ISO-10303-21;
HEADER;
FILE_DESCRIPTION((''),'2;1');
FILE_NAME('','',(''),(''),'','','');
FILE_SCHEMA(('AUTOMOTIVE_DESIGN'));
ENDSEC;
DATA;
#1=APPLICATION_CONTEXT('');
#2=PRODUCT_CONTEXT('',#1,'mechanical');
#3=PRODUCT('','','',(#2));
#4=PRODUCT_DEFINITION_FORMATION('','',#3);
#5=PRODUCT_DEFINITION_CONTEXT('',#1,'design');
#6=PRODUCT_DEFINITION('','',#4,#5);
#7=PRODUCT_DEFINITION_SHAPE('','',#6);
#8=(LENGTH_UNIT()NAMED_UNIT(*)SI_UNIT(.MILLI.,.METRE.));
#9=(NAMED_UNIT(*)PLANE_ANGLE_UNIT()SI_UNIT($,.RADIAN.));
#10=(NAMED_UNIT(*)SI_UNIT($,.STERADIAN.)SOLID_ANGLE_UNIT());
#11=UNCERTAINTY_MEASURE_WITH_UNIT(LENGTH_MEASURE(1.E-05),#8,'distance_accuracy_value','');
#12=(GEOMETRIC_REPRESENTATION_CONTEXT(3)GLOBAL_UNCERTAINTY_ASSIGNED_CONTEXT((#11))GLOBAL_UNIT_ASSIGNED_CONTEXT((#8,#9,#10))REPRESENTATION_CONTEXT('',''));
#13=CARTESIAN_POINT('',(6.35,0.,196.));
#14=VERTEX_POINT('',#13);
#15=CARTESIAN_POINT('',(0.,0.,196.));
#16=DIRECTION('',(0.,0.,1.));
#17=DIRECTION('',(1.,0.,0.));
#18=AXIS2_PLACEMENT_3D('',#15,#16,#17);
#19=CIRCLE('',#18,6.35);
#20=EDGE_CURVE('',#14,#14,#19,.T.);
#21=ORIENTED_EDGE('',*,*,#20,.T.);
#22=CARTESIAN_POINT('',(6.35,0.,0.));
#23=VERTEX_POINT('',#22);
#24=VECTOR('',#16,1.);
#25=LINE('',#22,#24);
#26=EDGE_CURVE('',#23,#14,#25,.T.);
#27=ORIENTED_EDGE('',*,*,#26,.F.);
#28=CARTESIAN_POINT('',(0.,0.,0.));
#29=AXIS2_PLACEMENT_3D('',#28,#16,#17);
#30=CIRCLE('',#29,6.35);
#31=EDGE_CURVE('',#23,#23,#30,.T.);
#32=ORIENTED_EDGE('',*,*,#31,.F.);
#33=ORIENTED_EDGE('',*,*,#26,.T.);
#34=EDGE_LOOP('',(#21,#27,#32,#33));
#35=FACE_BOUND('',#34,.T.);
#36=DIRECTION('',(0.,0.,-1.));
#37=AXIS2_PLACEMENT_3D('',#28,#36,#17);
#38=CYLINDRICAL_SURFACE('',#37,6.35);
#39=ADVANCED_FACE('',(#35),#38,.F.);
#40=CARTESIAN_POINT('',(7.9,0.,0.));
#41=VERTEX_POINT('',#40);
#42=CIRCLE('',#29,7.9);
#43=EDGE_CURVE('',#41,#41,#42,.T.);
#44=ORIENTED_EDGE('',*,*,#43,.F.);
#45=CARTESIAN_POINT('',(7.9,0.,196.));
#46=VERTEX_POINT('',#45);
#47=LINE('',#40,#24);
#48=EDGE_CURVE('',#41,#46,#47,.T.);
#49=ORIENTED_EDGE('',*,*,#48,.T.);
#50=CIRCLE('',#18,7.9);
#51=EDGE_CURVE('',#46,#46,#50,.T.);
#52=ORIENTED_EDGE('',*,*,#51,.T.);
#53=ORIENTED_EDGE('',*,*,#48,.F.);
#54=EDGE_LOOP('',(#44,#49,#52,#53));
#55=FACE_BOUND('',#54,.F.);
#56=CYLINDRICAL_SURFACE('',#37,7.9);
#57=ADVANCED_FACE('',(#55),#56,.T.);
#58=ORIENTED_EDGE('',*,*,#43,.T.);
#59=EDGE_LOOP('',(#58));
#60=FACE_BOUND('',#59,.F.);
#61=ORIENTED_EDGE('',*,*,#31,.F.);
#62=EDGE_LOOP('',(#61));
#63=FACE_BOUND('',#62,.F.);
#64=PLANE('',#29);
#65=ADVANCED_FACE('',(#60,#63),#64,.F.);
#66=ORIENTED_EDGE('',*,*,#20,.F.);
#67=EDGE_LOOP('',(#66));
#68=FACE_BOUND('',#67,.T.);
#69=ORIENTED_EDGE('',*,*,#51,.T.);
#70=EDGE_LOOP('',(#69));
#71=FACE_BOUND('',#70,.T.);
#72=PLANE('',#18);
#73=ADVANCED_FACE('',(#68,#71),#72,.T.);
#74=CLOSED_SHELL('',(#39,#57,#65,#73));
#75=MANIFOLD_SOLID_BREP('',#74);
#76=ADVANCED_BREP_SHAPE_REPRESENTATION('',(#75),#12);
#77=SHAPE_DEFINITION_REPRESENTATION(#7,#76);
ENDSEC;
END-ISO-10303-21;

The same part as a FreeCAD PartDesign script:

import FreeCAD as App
import Part
import Sketcher
from FreeCAD import Vector

doc = App.newDocument("Part")
body = doc.addObject("PartDesign::Body", "Body")

sketch1 = body.newObject("Sketcher::SketchObject", "Sketch")
sketch1.AttachmentSupport = (doc.getObject("XY_Plane"), [""])
sketch1.MapMode = "FlatFace"
sketch1.addGeometry([
    Part.Circle(Vector(0, 0, 0), Vector(0, 0, 1), 8),
    Part.Circle(Vector(0, 0, 0), Vector(0, 0, 1), 6),
], False)
sketch1.addConstraint([
    Sketcher.Constraint("Coincident", 0, 3, -1, 1),
    Sketcher.Constraint("Coincident", 1, 3, -1, 1),
    Sketcher.Constraint("Diameter", 0, 15.8),
    Sketcher.Constraint("Diameter", 1, 12.7),
])
pad1 = body.newObject("PartDesign::Pad", "Pad")
pad1.Profile = sketch1
pad1.Length = 196

doc.recompute()
